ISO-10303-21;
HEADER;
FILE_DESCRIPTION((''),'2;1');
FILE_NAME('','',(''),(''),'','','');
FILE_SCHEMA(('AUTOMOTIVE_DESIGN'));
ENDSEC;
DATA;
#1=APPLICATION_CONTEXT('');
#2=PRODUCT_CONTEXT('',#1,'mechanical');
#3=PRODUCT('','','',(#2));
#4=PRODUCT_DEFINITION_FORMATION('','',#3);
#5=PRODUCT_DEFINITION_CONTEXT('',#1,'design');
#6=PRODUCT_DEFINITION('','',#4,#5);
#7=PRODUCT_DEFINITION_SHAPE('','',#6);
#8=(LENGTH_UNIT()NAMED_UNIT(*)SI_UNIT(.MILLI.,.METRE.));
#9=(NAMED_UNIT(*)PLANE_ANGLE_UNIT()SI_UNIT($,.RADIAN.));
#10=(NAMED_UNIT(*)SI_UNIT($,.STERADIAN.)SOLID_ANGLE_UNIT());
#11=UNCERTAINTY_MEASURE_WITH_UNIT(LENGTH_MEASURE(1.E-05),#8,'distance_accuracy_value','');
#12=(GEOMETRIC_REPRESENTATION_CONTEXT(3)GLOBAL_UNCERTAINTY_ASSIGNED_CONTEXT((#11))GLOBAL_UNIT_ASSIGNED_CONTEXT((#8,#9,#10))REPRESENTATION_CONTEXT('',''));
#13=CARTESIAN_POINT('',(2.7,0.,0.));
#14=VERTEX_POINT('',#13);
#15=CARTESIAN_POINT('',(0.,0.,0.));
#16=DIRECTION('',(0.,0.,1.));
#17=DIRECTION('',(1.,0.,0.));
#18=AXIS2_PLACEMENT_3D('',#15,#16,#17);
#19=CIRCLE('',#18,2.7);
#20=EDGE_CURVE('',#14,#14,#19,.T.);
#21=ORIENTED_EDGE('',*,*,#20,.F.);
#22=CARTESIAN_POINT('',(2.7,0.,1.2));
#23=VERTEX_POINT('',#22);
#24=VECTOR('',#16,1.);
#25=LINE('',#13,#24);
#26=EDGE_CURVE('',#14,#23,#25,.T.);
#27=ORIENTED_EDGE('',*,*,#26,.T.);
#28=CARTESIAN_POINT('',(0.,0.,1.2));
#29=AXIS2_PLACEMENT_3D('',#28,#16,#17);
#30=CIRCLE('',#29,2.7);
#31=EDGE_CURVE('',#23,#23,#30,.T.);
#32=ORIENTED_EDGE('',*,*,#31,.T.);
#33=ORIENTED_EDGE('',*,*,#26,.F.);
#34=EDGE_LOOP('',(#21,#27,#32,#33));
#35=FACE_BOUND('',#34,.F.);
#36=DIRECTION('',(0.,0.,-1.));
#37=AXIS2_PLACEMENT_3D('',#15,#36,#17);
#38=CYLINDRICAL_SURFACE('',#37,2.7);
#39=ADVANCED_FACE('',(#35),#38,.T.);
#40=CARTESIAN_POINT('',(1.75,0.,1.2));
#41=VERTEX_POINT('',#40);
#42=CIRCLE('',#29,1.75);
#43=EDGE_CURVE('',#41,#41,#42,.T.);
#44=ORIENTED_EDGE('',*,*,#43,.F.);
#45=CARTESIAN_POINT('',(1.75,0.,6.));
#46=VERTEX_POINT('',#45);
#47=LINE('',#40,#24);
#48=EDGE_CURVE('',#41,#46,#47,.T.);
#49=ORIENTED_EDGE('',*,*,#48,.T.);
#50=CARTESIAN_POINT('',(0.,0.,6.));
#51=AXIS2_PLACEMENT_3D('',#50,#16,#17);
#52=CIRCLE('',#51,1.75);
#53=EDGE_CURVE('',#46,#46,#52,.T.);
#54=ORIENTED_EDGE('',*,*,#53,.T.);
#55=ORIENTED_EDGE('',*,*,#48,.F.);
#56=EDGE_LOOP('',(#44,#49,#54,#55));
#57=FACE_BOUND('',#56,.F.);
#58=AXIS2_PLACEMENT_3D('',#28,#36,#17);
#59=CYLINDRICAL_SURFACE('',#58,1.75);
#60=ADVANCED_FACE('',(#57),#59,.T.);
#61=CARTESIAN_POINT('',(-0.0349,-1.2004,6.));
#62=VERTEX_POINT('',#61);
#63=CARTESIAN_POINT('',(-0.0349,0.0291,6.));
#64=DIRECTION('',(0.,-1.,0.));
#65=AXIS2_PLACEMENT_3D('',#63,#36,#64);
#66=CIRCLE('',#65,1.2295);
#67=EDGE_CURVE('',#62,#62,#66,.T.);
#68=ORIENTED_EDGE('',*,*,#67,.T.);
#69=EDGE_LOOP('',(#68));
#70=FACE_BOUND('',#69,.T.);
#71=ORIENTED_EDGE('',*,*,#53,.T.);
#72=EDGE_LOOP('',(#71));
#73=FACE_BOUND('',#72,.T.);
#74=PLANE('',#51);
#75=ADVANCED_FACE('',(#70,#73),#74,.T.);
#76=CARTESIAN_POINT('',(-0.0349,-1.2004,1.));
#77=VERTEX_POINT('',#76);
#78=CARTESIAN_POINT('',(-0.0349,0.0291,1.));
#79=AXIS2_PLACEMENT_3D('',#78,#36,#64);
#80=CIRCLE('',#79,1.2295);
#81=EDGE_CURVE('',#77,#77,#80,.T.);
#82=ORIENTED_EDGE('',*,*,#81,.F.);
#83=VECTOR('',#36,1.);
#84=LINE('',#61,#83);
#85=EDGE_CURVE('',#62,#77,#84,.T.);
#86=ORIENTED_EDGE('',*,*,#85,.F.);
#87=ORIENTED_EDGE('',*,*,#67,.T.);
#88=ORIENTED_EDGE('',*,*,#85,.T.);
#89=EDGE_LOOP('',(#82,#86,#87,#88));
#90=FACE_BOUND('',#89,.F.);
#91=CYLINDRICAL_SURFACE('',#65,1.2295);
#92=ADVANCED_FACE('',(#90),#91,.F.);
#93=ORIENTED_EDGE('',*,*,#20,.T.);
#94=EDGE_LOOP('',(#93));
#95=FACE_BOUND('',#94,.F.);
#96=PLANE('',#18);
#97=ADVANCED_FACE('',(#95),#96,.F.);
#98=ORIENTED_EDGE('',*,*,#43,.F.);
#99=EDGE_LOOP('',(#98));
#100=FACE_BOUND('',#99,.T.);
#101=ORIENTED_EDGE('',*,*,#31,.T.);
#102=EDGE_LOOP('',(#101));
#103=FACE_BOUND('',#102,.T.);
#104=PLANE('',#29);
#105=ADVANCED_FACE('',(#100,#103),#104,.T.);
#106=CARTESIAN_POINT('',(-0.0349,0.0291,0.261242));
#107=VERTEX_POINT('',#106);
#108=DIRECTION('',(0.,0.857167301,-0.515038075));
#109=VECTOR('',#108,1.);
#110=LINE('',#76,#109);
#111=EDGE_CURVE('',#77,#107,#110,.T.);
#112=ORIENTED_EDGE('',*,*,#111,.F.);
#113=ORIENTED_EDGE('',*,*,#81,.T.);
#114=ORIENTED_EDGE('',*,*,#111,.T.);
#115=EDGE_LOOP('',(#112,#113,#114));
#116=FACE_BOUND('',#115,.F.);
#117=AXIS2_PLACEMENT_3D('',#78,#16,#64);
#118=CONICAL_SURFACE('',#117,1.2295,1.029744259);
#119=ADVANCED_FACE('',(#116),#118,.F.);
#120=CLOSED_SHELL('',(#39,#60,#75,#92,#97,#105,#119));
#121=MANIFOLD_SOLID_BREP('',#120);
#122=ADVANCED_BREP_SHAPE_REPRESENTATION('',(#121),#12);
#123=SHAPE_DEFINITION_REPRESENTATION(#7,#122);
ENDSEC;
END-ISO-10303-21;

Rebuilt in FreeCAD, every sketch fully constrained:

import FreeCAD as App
import Part
import Sketcher
from FreeCAD import Vector
Q = App.Units.Quantity

doc = App.newDocument("Part")
body = doc.addObject("PartDesign::Body", "Body")

# Sketch on XY plane
sketch1 = doc.addObject("Sketcher::SketchObject", "Sketch")
body.addObject(sketch1)
sketch1.AttachmentSupport = (doc.XY_Plane, [""])
sketch1.MapMode = "FlatFace"
sketch1.addGeometry(Part.Circle(Vector(0, 0, 0), Vector(0, 0, 1), 2.7), False)
sketch1.addConstraint([
    Sketcher.Constraint("Coincident", 0, 3, -1, 1),
    Sketcher.Constraint("Diameter", 0, Q("5.4 mm")),
])
pad1 = doc.addObject("PartDesign::Pad", "Pad")
body.addObject(pad1)
pad1.Profile = sketch1
pad1.Length = 1.2

# Sketch on XY plane
sketch2 = doc.addObject("Sketcher::SketchObject", "Sketch001")
body.addObject(sketch2)
sketch2.AttachmentSupport = (doc.XY_Plane, [""])
sketch2.MapMode = "FlatFace"
sketch2.AttachmentOffset = App.Placement(Vector(0, 0, 1.2), App.Rotation())
sketch2.addGeometry(Part.Circle(Vector(0, 0, 0), Vector(0, 0, 1), 1.8), False)
sketch2.addConstraint([
    Sketcher.Constraint("Coincident", 0, 3, -1, 1),
    Sketcher.Constraint("Diameter", 0, Q("3.5 mm")),
])
pad2 = doc.addObject("PartDesign::Pad", "Pad001")
body.addObject(pad2)
pad2.Profile = sketch2
pad2.Length = 4.8

# Sketch on XY plane
sketch3 = doc.addObject("Sketcher::SketchObject", "Sketch002")
body.addObject(sketch3)
sketch3.AttachmentSupport = (doc.XY_Plane, [""])
sketch3.MapMode = "FlatFace"
sketch3.AttachmentOffset = App.Placement(Vector(0, 0, 6), App.Rotation())
sketch3.addGeometry(Part.Circle(Vector(0, 0, 0), Vector(0, 0, 1), 1.2), False)
sketch3.addConstraint([
    Sketcher.Constraint("Diameter", 0, Q("2.459 mm")),
    Sketcher.Constraint("DistanceX", 0, 3, -1, 1, Q("0.035 mm")),
    Sketcher.Constraint("DistanceY", -1, 1, 0, 3, Q("0.029 mm")),
])
doc.recompute()
hole = doc.addObject("PartDesign::Hole", "Hole")
body.addObject(hole)
hole.Profile = sketch3
hole.ThreadType = "None"
hole.Diameter = 2.459
hole.DepthType = "Dimension"
hole.Depth = 5
hole.DrillPoint = "Angled"
hole.DrillPointAngle = 118

doc.recompute()
